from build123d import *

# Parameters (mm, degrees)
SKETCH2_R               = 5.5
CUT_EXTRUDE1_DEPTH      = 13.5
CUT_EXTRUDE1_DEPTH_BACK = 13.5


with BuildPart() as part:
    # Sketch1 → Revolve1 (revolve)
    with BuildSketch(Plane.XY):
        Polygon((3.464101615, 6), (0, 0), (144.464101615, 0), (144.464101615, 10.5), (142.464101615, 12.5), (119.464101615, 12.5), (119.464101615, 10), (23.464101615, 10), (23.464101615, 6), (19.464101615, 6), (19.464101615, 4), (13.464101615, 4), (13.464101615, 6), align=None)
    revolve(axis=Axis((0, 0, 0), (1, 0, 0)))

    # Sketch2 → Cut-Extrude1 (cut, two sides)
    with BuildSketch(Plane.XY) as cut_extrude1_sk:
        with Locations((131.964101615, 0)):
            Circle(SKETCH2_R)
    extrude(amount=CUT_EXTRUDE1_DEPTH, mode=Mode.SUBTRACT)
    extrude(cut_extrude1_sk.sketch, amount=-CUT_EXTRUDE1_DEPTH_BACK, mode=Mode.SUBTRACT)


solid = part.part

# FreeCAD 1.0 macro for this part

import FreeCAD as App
import Part
import Sketcher

V = App.Vector
Q = App.Units.Quantity

doc = App.newDocument("Part")
body = doc.addObject("PartDesign::Body", "Body")

# Sketch on XY plane
sketch1 = body.newObject("Sketcher::SketchObject", "Sketch")
sketch1.AttachmentSupport = (doc.getObject("XY_Plane"), [""])
sketch1.MapMode = "FlatFace"
sketch1.addGeometry(Part.LineSegment(V(3.5, 6, 0), V(0, 0, 0)), False)
sketch1.addGeometry(Part.LineSegment(V(0, 0, 0), V(144.5, 0, 0)), False)
sketch1.addGeometry(Part.LineSegment(V(144.5, 0, 0), V(144.5, 10.5, 0)), False)
sketch1.addGeometry(Part.LineSegment(V(144.5, 10.5, 0), V(142.5, 12.5, 0)), False)
sketch1.addGeometry(Part.LineSegment(V(142.5, 12.5, 0), V(119.5, 12.5, 0)), False)
sketch1.addGeometry(Part.LineSegment(V(119.5, 12.5, 0), V(119.5, 10, 0)), False)
sketch1.addGeometry(Part.LineSegment(V(119.5, 10, 0), V(23.5, 10, 0)), False)
sketch1.addGeometry(Part.LineSegment(V(23.5, 10, 0), V(23.5, 6, 0)), False)
sketch1.addGeometry(Part.LineSegment(V(23.5, 6, 0), V(19.5, 6, 0)), False)
sketch1.addGeometry(Part.LineSegment(V(19.5, 6, 0), V(19.5, 4, 0)), False)
sketch1.addGeometry(Part.LineSegment(V(19.5, 4, 0), V(13.5, 4, 0)), False)
sketch1.addGeometry(Part.LineSegment(V(13.5, 4, 0), V(13.5, 6, 0)), False)
sketch1.addGeometry(Part.LineSegment(V(13.5, 6, 0), V(3.5, 6, 0)), False)
sketch1.addConstraint(Sketcher.Constraint("Coincident", 0, 2, 1, 1))
sketch1.addConstraint(Sketcher.Constraint("Coincident", 1, 2, 2, 1))
sketch1.addConstraint(Sketcher.Constraint("Coincident", 2, 2, 3, 1))
sketch1.addConstraint(Sketcher.Constraint("Coincident", 3, 2, 4, 1))
sketch1.addConstraint(Sketcher.Constraint("Coincident", 4, 2, 5, 1))
sketch1.addConstraint(Sketcher.Constraint("Coincident", 5, 2, 6, 1))
sketch1.addConstraint(Sketcher.Constraint("Coincident", 6, 2, 7, 1))
sketch1.addConstraint(Sketcher.Constraint("Coincident", 7, 2, 8, 1))
sketch1.addConstraint(Sketcher.Constraint("Coincident", 8, 2, 9, 1))
sketch1.addConstraint(Sketcher.Constraint("Coincident", 9, 2, 10, 1))
sketch1.addConstraint(Sketcher.Constraint("Coincident", 10, 2, 11, 1))
sketch1.addConstraint(Sketcher.Constraint("Coincident", 11, 2, 12, 1))
sketch1.addConstraint(Sketcher.Constraint("Coincident", 12, 2, 0, 1))
sketch1.addConstraint(Sketcher.Constraint("Horizontal", 1))
sketch1.addConstraint(Sketcher.Constraint("Vertical", 2))
sketch1.addConstraint(Sketcher.Constraint("Horizontal", 4))
sketch1.addConstraint(Sketcher.Constraint("Vertical", 5))
sketch1.addConstraint(Sketcher.Constraint("Horizontal", 6))
sketch1.addConstraint(Sketcher.Constraint("Vertical", 7))
sketch1.addConstraint(Sketcher.Constraint("Horizontal", 8))
sketch1.addConstraint(Sketcher.Constraint("Vertical", 9))
sketch1.addConstraint(Sketcher.Constraint("Horizontal", 10))
sketch1.addConstraint(Sketcher.Constraint("Vertical", 11))
sketch1.addConstraint(Sketcher.Constraint("Horizontal", 12))
sketch1.addConstraint(Sketcher.Constraint("Coincident", 0, 2, -1, 1))
sketch1.addConstraint(Sketcher.Constraint("Horizontal", 8, 2, 11, 2))
sketch1.addConstraint(Sketcher.Constraint("Equal", 8, 7))
sketch1.addConstraint(Sketcher.Constraint("DistanceX", 4, 2, 4, 1, Q("23 mm")))
sketch1.addConstraint(Sketcher.Constraint("DistanceX", 6, 2, 6, 1, Q("96 mm")))
sketch1.addConstraint(Sketcher.Constraint("DistanceX", 8, 2, 8, 1, Q("4 mm")))
sketch1.addConstraint(Sketcher.Constraint("DistanceX", 10, 2, 10, 1, Q("6 mm")))
sketch1.addConstraint(Sketcher.Constraint("DistanceX", 12, 2, 12, 1, Q("10 mm")))
sketch1.addConstraint(Sketcher.Constraint("DistanceY", 9, 2, 9, 1, Q("2 mm")))
sketch1.addConstraint(Sketcher.Constraint("Angle", 0, Q("-120 deg")))
sketch1.addConstraint(Sketcher.Constraint("Angle", 3, Q("135 deg")))
sketch1.addConstraint(Sketcher.Constraint("DistanceY", 2, 1, 2, 2, Q("10.5 mm")))
sketch1.addConstraint(Sketcher.Constraint("DistanceY", 5, 2, 5, 1, Q("2.5 mm")))
sketch1.addConstraint(Sketcher.Constraint("DistanceY", -1, 1, 5, 2, Q("10 mm")))
revolution = body.newObject("PartDesign::Revolution", "Revolution")
revolution.Profile = sketch1
revolution.ReferenceAxis = (sketch1, ["H_Axis"])
revolution.Angle = 360

# Sketch on XY plane
sketch2 = body.newObject("Sketcher::SketchObject", "Sketch001")
sketch2.AttachmentSupport = (doc.getObject("XY_Plane"), [""])
sketch2.MapMode = "FlatFace"
sketch2.addGeometry(Part.Circle(V(132, 0, 0), V(0, 0, 1), 6), False)
sketch2.addConstraint(Sketcher.Constraint("PointOnObject", 0, 3, -1))
sketch2.addConstraint(Sketcher.Constraint("Diameter", 0, Q("11 mm")))
sketch2.addConstraint(Sketcher.Constraint("DistanceX", -1, 1, 0, 3, Q("131.964102 mm")))
pocket1 = body.newObject("PartDesign::Pocket", "Pocket")
pocket1.Profile = sketch2
pocket1.Type = "ThroughAll"
pocket1.Midplane = True

doc.recompute()
